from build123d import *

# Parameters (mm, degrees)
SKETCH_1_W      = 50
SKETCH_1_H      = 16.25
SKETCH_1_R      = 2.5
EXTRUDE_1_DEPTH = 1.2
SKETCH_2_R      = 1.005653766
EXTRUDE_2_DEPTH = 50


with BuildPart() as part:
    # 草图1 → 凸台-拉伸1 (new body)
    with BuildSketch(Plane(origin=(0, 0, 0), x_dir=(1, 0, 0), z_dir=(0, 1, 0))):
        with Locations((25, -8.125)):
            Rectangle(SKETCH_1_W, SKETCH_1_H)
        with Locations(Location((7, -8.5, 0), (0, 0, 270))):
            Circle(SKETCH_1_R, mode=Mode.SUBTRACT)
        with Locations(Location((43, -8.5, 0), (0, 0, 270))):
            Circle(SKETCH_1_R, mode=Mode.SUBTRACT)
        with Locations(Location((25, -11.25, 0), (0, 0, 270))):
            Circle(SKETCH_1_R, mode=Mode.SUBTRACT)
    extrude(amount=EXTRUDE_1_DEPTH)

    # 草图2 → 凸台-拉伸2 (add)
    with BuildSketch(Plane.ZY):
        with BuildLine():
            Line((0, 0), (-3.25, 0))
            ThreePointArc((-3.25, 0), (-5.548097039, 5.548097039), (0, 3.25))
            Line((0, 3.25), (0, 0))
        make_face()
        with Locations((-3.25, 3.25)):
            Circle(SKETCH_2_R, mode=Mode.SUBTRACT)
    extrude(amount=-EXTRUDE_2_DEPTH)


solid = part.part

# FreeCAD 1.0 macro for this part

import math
import FreeCAD as App
import Part
import Sketcher
from FreeCAD import Vector

doc = App.newDocument("Part")
body = doc.addObject("PartDesign::Body", "Body")

# Sketch on XZ plane
sketch1 = body.newObject("Sketcher::SketchObject", "Sketch")
sketch1.AttachmentSupport = (doc.getObject("XZ_Plane"), [""])
sketch1.MapMode = "FlatFace"
sketch1.addGeometry([
    Part.LineSegment(Vector(0, 0, 0), Vector(0, 16.2, 0)),  # 0
    Part.LineSegment(Vector(0, 16.2, 0), Vector(50, 16.2, 0)),  # 1
    Part.LineSegment(Vector(50, 16.2, 0), Vector(50, 0, 0)),  # 2
    Part.LineSegment(Vector(50, 0, 0), Vector(0, 0, 0)),  # 3
    Part.Circle(Vector(25, 11.2, 0), Vector(0, 0, 1), 2.5),  # 4
    Part.Circle(Vector(7, 8.5, 0), Vector(0, 0, 1), 2.5),  # 5
    Part.Circle(Vector(43, 8.5, 0), Vector(0, 0, 1), 2.5),  # 6
], False)
sketch1.addConstraint([
    Sketcher.Constraint("Coincident", 0, 2, 1, 1),
    Sketcher.Constraint("Coincident", 1, 2, 2, 1),
    Sketcher.Constraint("Coincident", 2, 2, 3, 1),
    Sketcher.Constraint("Coincident", 3, 2, 0, 1),
    Sketcher.Constraint("Vertical", 0),
    Sketcher.Constraint("Horizontal", 1),
    Sketcher.Constraint("Vertical", 2),
    Sketcher.Constraint("Horizontal", 3),
    Sketcher.Constraint("Coincident", 3, 2, -1, 1),
    Sketcher.Constraint("Equal", 4, 5),
    Sketcher.Constraint("Equal", 5, 6),
    Sketcher.Constraint("Horizontal", 5, 3, 6, 3),
    Sketcher.Constraint("Diameter", 4, 5.0),
    Sketcher.Constraint("DistanceX", 1, 1, 1, 2, 50.0),
    Sketcher.Constraint("DistanceX", -1, 1, 4, 3, 25.0),
    Sketcher.Constraint("DistanceX", -1, 1, 5, 3, 7.0),
    Sketcher.Constraint("DistanceX", -1, 1, 6, 3, 43.0),
    Sketcher.Constraint("DistanceY", 4, 3, 0, 2, 5.0),
    Sketcher.Constraint("DistanceY", 0, 1, 0, 2, 16.25),
    Sketcher.Constraint("DistanceY", -1, 1, 5, 3, 8.5),
])
pad1 = body.newObject("PartDesign::Pad", "Pad")
pad1.Profile = sketch1
pad1.Length = 1.2
pad1.Reversed = True

# Sketch on YZ plane
sketch2 = body.newObject("Sketcher::SketchObject", "Sketch001")
sketch2.AttachmentSupport = (doc.getObject("YZ_Plane"), [""])
sketch2.MapMode = "FlatFace"
sketch2.addGeometry([
    Part.LineSegment(Vector(0, -3.2, 0), Vector(0, 0, 0)),
    Part.LineSegment(Vector(0, 0, 0), Vector(3.2, 0, 0)),
    Part.ArcOfCircle(Part.Circle(Vector(3.2, -3.2, 0), Vector(0, 0, 1), 3.2), math.radians(180), math.radians(450)),
    Part.Circle(Vector(3.2, -3.2, 0), Vector(0, 0, 1), 1),
], False)
sketch2.addConstraint([
    Sketcher.Constraint("Coincident", 0, 2, 1, 1),
    Sketcher.Constraint("Tangent", 1, 2, 2, 2),
    Sketcher.Constraint("Tangent", 2, 1, 0, 1),
    Sketcher.Constraint("Vertical", 0),
    Sketcher.Constraint("Horizontal", 1),
    Sketcher.Constraint("Coincident", 0, 2, -1, 1),
    Sketcher.Constraint("Coincident", 3, 3, 2, 3),
    Sketcher.Constraint("Radius", 2, 3.25),
    Sketcher.Constraint("Diameter", 3, 2.011308),
])
pad2 = body.newObject("PartDesign::Pad", "Pad001")
pad2.Profile = sketch2
pad2.Length = 50

doc.recompute()
